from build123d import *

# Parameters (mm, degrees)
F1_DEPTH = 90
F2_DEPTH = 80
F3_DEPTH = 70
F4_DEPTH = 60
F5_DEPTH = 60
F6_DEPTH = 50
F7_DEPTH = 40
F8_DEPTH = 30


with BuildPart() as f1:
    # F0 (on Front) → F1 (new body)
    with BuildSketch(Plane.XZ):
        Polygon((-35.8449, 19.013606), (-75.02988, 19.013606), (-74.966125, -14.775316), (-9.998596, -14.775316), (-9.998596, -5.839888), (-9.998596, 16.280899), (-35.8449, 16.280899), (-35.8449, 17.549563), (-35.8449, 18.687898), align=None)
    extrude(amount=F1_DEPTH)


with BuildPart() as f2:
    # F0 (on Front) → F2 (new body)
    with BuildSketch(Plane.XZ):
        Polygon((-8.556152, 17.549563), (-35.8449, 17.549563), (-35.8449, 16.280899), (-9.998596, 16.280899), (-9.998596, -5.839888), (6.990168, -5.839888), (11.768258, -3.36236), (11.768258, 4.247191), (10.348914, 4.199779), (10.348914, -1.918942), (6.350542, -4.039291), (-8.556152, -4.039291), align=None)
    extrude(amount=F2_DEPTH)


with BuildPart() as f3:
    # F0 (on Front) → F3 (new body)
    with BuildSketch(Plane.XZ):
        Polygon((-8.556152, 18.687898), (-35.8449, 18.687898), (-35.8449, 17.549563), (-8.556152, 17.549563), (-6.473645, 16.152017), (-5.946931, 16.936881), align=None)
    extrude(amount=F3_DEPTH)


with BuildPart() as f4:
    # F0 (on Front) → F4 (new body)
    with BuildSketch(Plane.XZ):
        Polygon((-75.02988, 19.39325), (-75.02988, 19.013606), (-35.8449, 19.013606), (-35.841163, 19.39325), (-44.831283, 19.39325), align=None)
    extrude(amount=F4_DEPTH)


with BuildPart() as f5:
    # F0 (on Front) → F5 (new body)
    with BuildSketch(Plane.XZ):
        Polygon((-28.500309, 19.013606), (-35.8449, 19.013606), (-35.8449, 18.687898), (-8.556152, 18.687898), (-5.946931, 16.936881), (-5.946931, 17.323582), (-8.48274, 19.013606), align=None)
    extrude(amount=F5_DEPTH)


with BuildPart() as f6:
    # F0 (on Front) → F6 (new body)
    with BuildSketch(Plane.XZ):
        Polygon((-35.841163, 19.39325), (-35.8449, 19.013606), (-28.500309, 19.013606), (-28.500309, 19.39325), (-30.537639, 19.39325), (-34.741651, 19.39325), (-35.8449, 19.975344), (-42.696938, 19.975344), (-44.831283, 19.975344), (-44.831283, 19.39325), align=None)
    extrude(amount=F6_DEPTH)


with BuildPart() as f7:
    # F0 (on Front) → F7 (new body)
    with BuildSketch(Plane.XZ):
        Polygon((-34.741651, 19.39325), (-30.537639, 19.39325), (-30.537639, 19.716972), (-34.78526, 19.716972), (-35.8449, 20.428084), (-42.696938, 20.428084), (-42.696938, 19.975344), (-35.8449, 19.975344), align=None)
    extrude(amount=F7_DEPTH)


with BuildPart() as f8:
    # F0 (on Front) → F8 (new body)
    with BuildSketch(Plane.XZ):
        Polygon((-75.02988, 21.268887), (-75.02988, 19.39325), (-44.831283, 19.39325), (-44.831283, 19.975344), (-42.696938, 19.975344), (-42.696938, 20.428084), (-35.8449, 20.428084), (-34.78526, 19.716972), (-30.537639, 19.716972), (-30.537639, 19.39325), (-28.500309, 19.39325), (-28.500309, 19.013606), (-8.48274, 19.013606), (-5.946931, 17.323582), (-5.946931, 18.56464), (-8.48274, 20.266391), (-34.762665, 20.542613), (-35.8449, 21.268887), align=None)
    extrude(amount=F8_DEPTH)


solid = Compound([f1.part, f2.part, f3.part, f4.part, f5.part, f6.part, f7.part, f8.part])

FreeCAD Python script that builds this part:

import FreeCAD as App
import Part
import Sketcher

V = App.Vector

doc = App.newDocument("Part")
body = doc.addObject("PartDesign::Body", "Body")

# Sketch on XZ plane
sketch1 = doc.addObject("Sketcher::SketchObject", "Sketch")
body.addObject(sketch1)
sketch1.AttachmentSupport = (doc.XZ_Plane, [""])
sketch1.MapMode = "FlatFace"
sketch1.addGeometry([
    Part.LineSegment(V(-35.8, 19, 0), V(-75, 19, 0)),  # 0
    Part.LineSegment(V(-75, 19, 0), V(-75, -14.8, 0)),  # 1
    Part.LineSegment(V(-75, -14.8, 0), V(-10, -14.8, 0)),  # 2
    Part.LineSegment(V(-10, -14.8, 0), V(-10, 16.3, 0)),  # 3
    Part.LineSegment(V(-10, 16.3, 0), V(-35.8, 16.3, 0)),  # 4
    Part.LineSegment(V(-35.8, 16.3, 0), V(-35.8, 19, 0)),  # 5
], False)
sketch1.addConstraint([
    Sketcher.Constraint("Coincident", 0, 2, 1, 1),
    Sketcher.Constraint("Coincident", 1, 2, 2, 1),
    Sketcher.Constraint("Coincident", 2, 2, 3, 1),
    Sketcher.Constraint("Coincident", 3, 2, 4, 1),
    Sketcher.Constraint("Coincident", 4, 2, 5, 1),
    Sketcher.Constraint("Coincident", 5, 2, 0, 1),
    Sketcher.Constraint("Horizontal", 0),
    Sketcher.Constraint("Horizontal", 2),
    Sketcher.Constraint("Vertical", 3),
    Sketcher.Constraint("Horizontal", 4),
    Sketcher.Constraint("Vertical", 5),
    Sketcher.Constraint("DistanceX", 0, 2, 0, 1, 39.18498),
    Sketcher.Constraint("DistanceX", 2, 1, 2, 2, 64.967529),
    Sketcher.Constraint("DistanceY", -1, 1, 3, 2, 16.280899),
    Sketcher.Constraint("DistanceX", 4, 2, -1, 1, 35.8449),
    Sketcher.Constraint("DistanceX", 4, 2, 4, 1, 25.846304),
    Sketcher.Constraint("DistanceY", 3, 1, 3, 2, 31.056215),
    Sketcher.Constraint("DistanceY", 5, 1, 5, 2, 2.732707),
])
pad1 = doc.addObject("PartDesign::Pad", "Pad")
body.addObject(pad1)
pad1.Profile = sketch1
pad1.Length = 90
body2 = doc.addObject("PartDesign::Body", "Body001")

# Sketch on XZ plane
sketch2 = doc.addObject("Sketcher::SketchObject", "Sketch001")
body2.addObject(sketch2)
sketch2.AttachmentSupport = (doc.getObject("XZ_Plane001"), [""])
sketch2.MapMode = "FlatFace"
sketch2.addGeometry([
    Part.LineSegment(V(-8.6, 17.5, 0), V(-35.8, 17.5, 0)),  # 0
    Part.LineSegment(V(-35.8, 17.5, 0), V(-35.8, 16.3, 0)),  # 1
    Part.LineSegment(V(-35.8, 16.3, 0), V(-10, 16.3, 0)),  # 2
    Part.LineSegment(V(-10, 16.3, 0), V(-10, -5.8, 0)),  # 3
    Part.LineSegment(V(-10, -5.8, 0), V(7, -5.8, 0)),  # 4
    Part.LineSegment(V(7, -5.8, 0), V(11.8, -3.4, 0)),  # 5
    Part.LineSegment(V(11.8, -3.4, 0), V(11.8, 4.2, 0)),  # 6
    Part.LineSegment(V(11.8, 4.2, 0), V(10.3, 4.2, 0)),  # 7
    Part.LineSegment(V(10.3, 4.2, 0), V(10.3, -1.9, 0)),  # 8
    Part.LineSegment(V(10.3, -1.9, 0), V(6.4, -4, 0)),  # 9
    Part.LineSegment(V(6.4, -4, 0), V(-8.6, -4, 0)),  # 10
    Part.LineSegment(V(-8.6, -4, 0), V(-8.6, 17.5, 0)),  # 11
], False)
sketch2.addConstraint([
    Sketcher.Constraint("Coincident", 0, 2, 1, 1),
    Sketcher.Constraint("Coincident", 1, 2, 2, 1),
    Sketcher.Constraint("Coincident", 2, 2, 3, 1),
    Sketcher.Constraint("Coincident", 3, 2, 4, 1),
    Sketcher.Constraint("Coincident", 4, 2, 5, 1),
    Sketcher.Constraint("Coincident", 5, 2, 6, 1),
    Sketcher.Constraint("Coincident", 6, 2, 7, 1),
    Sketcher.Constraint("Coincident", 7, 2, 8, 1),
    Sketcher.Constraint("Coincident", 8, 2, 9, 1),
    Sketcher.Constraint("Coincident", 9, 2, 10, 1),
    Sketcher.Constraint("Coincident", 10, 2, 11, 1),
    Sketcher.Constraint("Coincident", 11, 2, 0, 1),
    Sketcher.Constraint("Horizontal", 0),
    Sketcher.Constraint("Vertical", 1),
    Sketcher.Constraint("Horizontal", 2),
    Sketcher.Constraint("Vertical", 3),
    Sketcher.Constraint("Horizontal", 4),
    Sketcher.Constraint("Vertical", 6),
    Sketcher.Constraint("Vertical", 8),
    Sketcher.Constraint("Horizontal", 10),
    Sketcher.Constraint("Vertical", 11),
    Sketcher.Constraint("Distance", 9, 4.525799),
    Sketcher.Constraint("DistanceX", 0, 2, 0, 1, 27.288748),
    Sketcher.Constraint("DistanceY", 6, 1, 6, 2, 7.609551),
    Sketcher.Constraint("DistanceY", 8, 2, 8, 1, 6.118721),
    Sketcher.Constraint("DistanceX", 0, 2, -1, 1, 35.8449),
    Sketcher.Constraint("DistanceY", -1, 1, 1, 2, 16.280899),
    Sketcher.Constraint("Distance", 5, 5.38222),
    Sketcher.Constraint("DistanceX", 2, 1, 2, 2, 25.846304),
    Sketcher.Constraint("DistanceX", 4, 1, 4, 2, 16.988764),
    Sketcher.Constraint("DistanceX", 10, 2, 10, 1, 14.906694),
    Sketcher.Constraint("DistanceY", 1, 2, 1, 1, 1.268664),
    Sketcher.Constraint("DistanceY", 3, 2, 3, 1, 22.120787),
    Sketcher.Constraint("DistanceY", 11, 1, 11, 2, 21.588854),
    Sketcher.Constraint("DistanceY", 5, 2, -1, 1, 3.36236),
    Sketcher.Constraint("DistanceY", -1, 1, 7, 2, 4.199779),
])
pad2 = doc.addObject("PartDesign::Pad", "Pad001")
body2.addObject(pad2)
pad2.Profile = sketch2
pad2.Length = 80
body3 = doc.addObject("PartDesign::Body", "Body002")

# Sketch on XZ plane
sketch3 = doc.addObject("Sketcher::SketchObject", "Sketch002")
body3.addObject(sketch3)
sketch3.AttachmentSupport = (doc.getObject("XZ_Plane002"), [""])
sketch3.MapMode = "FlatFace"
sketch3.addGeometry([
    Part.LineSegment(V(-8.6, 18.7, 0), V(-35.8, 18.7, 0)),  # 0
    Part.LineSegment(V(-35.8, 18.7, 0), V(-35.8, 17.5, 0)),  # 1
    Part.LineSegment(V(-35.8, 17.5, 0), V(-8.6, 17.5, 0)),  # 2
    Part.LineSegment(V(-8.6, 17.5, 0), V(-6.5, 16.2, 0)),  # 3
    Part.LineSegment(V(-6.5, 16.2, 0), V(-5.9, 16.9, 0)),  # 4
    Part.LineSegment(V(-5.9, 16.9, 0), V(-8.6, 18.7, 0)),  # 5
], False)
sketch3.addConstraint([
    Sketcher.Constraint("Coincident", 0, 2, 1, 1),
    Sketcher.Constraint("Coincident", 1, 2, 2, 1),
    Sketcher.Constraint("Coincident", 2, 2, 3, 1),
    Sketcher.Constraint("Coincident", 3, 2, 4, 1),
    Sketcher.Constraint("Coincident", 4, 2, 5, 1),
    Sketcher.Constraint("Coincident", 5, 2, 0, 1),
    Sketcher.Constraint("Horizontal", 0),
    Sketcher.Constraint("Vertical", 1),
    Sketcher.Constraint("Horizontal", 2),
    Sketcher.Constraint("Perpendicular", 3, 4),
    Sketcher.Constraint("Perpendicular", 4, 5),
    Sketcher.Constraint("Vertical", 2, 2, 5, 2),
    Sketcher.Constraint("DistanceX", 0, 2, 0, 1, 27.288748),
    Sketcher.Constraint("DistanceX", 0, 2, -1, 1, 35.8449),
    Sketcher.Constraint("DistanceY", -1, 1, 0, 2, 18.687898),
    Sketcher.Constraint("Distance", 3, 2.507981),
    Sketcher.Constraint("Distance", 4, 0.945219),
    Sketcher.Constraint("DistanceY", 1, 2, 1, 1, 1.138335),
])
pad3 = doc.addObject("PartDesign::Pad", "Pad002")
body3.addObject(pad3)
pad3.Profile = sketch3
pad3.Length = 70
body4 = doc.addObject("PartDesign::Body", "Body003")

# Sketch on XZ plane
sketch4 = doc.addObject("Sketcher::SketchObject", "Sketch003")
body4.addObject(sketch4)
sketch4.AttachmentSupport = (doc.getObject("XZ_Plane003"), [""])
sketch4.MapMode = "FlatFace"
sketch4.addGeometry([
    Part.LineSegment(V(-75.03, 19.39, 0), V(-75.03, 19.01, 0)),
    Part.LineSegment(V(-75.03, 19.01, 0), V(-35.84, 19.01, 0)),
    Part.LineSegment(V(-35.84, 19.01, 0), V(-35.84, 19.39, 0)),
    Part.LineSegment(V(-35.84, 19.39, 0), V(-75.03, 19.39, 0)),
], False)
sketch4.addConstraint([
    Sketcher.Constraint("Coincident", 0, 2, 1, 1),
    Sketcher.Constraint("Coincident", 1, 2, 2, 1),
    Sketcher.Constraint("Coincident", 2, 2, 3, 1),
    Sketcher.Constraint("Coincident", 3, 2, 0, 1),
    Sketcher.Constraint("Vertical", 0),
    Sketcher.Constraint("Horizontal", 1),
    Sketcher.Constraint("Horizontal", 3),
    Sketcher.Constraint("DistanceX", 1, 1, 1, 2, 39.18498),
    Sketcher.Constraint("DistanceX", 1, 2, -1, 1, 35.8449),
    Sketcher.Constraint("DistanceX", 3, 2, 3, 1, 39.188717),
    Sketcher.Constraint("DistanceY", 0, 2, 0, 1, 0.379644),
    Sketcher.Constraint("DistanceY", -1, 1, 2, 2, 19.39325),
])
pad4 = doc.addObject("PartDesign::Pad", "Pad003")
body4.addObject(pad4)
pad4.Profile = sketch4
pad4.Length = 60
body5 = doc.addObject("PartDesign::Body", "Body004")

# Sketch on XZ plane
sketch5 = doc.addObject("Sketcher::SketchObject", "Sketch004")
body5.addObject(sketch5)
sketch5.AttachmentSupport = (doc.getObject("XZ_Plane004"), [""])
sketch5.MapMode = "FlatFace"
sketch5.addGeometry([
    Part.LineSegment(V(-35.84, 19.01, 0), V(-35.84, 18.69, 0)),  # 0
    Part.LineSegment(V(-35.84, 18.69, 0), V(-8.56, 18.69, 0)),  # 1
    Part.LineSegment(V(-8.56, 18.69, 0), V(-5.95, 16.94, 0)),  # 2
    Part.LineSegment(V(-5.95, 16.94, 0), V(-5.95, 17.32, 0)),  # 3
    Part.LineSegment(V(-5.95, 17.32, 0), V(-8.48, 19.01, 0)),  # 4
    Part.LineSegment(V(-8.48, 19.01, 0), V(-35.84, 19.01, 0)),  # 5
], False)
sketch5.addConstraint([
    Sketcher.Constraint("Coincident", 0, 2, 1, 1),
    Sketcher.Constraint("Coincident", 1, 2, 2, 1),
    Sketcher.Constraint("Coincident", 2, 2, 3, 1),
    Sketcher.Constraint("Coincident", 3, 2, 4, 1),
    Sketcher.Constraint("Coincident", 4, 2, 5, 1),
    Sketcher.Constraint("Coincident", 5, 2, 0, 1),
    Sketcher.Constraint("Vertical", 0),
    Sketcher.Constraint("Horizontal", 1),
    Sketcher.Constraint("Vertical", 3),
    Sketcher.Constraint("Horizontal", 5),
    Sketcher.Constraint("DistanceY", 3, 1, 3, 2, 0.386701),
    Sketcher.Constraint("DistanceX", 1, 1, 1, 2, 27.288748),
    Sketcher.Constraint("DistanceX", 5, 2, 5, 1, 27.36216),
    Sketcher.Constraint("DistanceX", 0, 2, -1, 1, 35.8449),
    Sketcher.Constraint("DistanceY", -1, 1, 0, 2, 18.687898),
    Sketcher.Constraint("DistanceY", 0, 2, 0, 1, 0.325708),
    Sketcher.Constraint("DistanceX", 2, 2, -1, 1, 5.946931),
    Sketcher.Constraint("DistanceY", -1, 1, 2, 2, 16.936881),
])
pad5 = doc.addObject("PartDesign::Pad", "Pad004")
body5.addObject(pad5)
pad5.Profile = sketch5
pad5.Length = 60
body6 = doc.addObject("PartDesign::Body", "Body005")

# Sketch on XZ plane
sketch6 = doc.addObject("Sketcher::SketchObject", "Sketch005")
body6.addObject(sketch6)
sketch6.AttachmentSupport = (doc.getObject("XZ_Plane005"), [""])
sketch6.MapMode = "FlatFace"
sketch6.addGeometry([
    Part.LineSegment(V(-35.84, 19.39, 0), V(-35.84, 19.01, 0)),  # 0
    Part.LineSegment(V(-35.84, 19.01, 0), V(-28.5, 19.01, 0)),  # 1
    Part.LineSegment(V(-28.5, 19.01, 0), V(-28.5, 19.39, 0)),  # 2
    Part.LineSegment(V(-28.5, 19.39, 0), V(-34.74, 19.39, 0)),  # 3
    Part.LineSegment(V(-34.74, 19.39, 0), V(-35.84, 19.98, 0)),  # 4
    Part.LineSegment(V(-35.84, 19.98, 0), V(-44.83, 19.98, 0)),  # 5
    Part.LineSegment(V(-44.83, 19.98, 0), V(-44.83, 19.39, 0)),  # 6
    Part.LineSegment(V(-44.83, 19.39, 0), V(-35.84, 19.39, 0)),  # 7
], False)
sketch6.addConstraint([
    Sketcher.Constraint("Coincident", 0, 2, 1, 1),
    Sketcher.Constraint("Coincident", 1, 2, 2, 1),
    Sketcher.Constraint("Coincident", 2, 2, 3, 1),
    Sketcher.Constraint("Coincident", 3, 2, 4, 1),
    Sketcher.Constraint("Coincident", 4, 2, 5, 1),
    Sketcher.Constraint("Coincident", 5, 2, 6, 1),
    Sketcher.Constraint("Coincident", 6, 2, 7, 1),
    Sketcher.Constraint("Coincident", 7, 2, 0, 1),
    Sketcher.Constraint("Horizontal", 1),
    Sketcher.Constraint("Vertical", 2),
    Sketcher.Constraint("Horizontal", 3),
    Sketcher.Constraint("Horizontal", 5),
    Sketcher.Constraint("Vertical", 6),
    Sketcher.Constraint("Horizontal", 7),
    Sketcher.Constraint("Horizontal", 3, 2, 6, 2),
    Sketcher.Constraint("Vertical", 0, 2, 4, 2),
    Sketcher.Constraint("DistanceX", 1, 1, 1, 2, 7.344591),
    Sketcher.Constraint("DistanceX", 3, 2, 3, 1, 6.241342),
    Sketcher.Constraint("DistanceX", 7, 1, 7, 2, 8.99012),
    Sketcher.Constraint("DistanceX", 0, 2, -1, 1, 35.8449),
    Sketcher.Constraint("DistanceX", 5, 2, 5, 1, 8.986383),
    Sketcher.Constraint("DistanceY", 2, 1, 2, 2, 0.379644),
    Sketcher.Constraint("DistanceY", 6, 2, 6, 1, 0.582094),
    Sketcher.Constraint("DistanceY", -1, 1, 2, 2, 19.39325),
])
pad6 = doc.addObject("PartDesign::Pad", "Pad005")
body6.addObject(pad6)
pad6.Profile = sketch6
pad6.Length = 50
body7 = doc.addObject("PartDesign::Body", "Body006")

# Sketch on XZ plane
sketch7 = doc.addObject("Sketcher::SketchObject", "Sketch006")
body7.addObject(sketch7)
sketch7.AttachmentSupport = (doc.getObject("XZ_Plane006"), [""])
sketch7.MapMode = "FlatFace"
sketch7.addGeometry([
    Part.LineSegment(V(-34.74, 19.39, 0), V(-30.54, 19.39, 0)),  # 0
    Part.LineSegment(V(-30.54, 19.39, 0), V(-30.54, 19.72, 0)),  # 1
    Part.LineSegment(V(-30.54, 19.72, 0), V(-34.79, 19.72, 0)),  # 2
    Part.LineSegment(V(-34.79, 19.72, 0), V(-35.84, 20.43, 0)),  # 3
    Part.LineSegment(V(-35.84, 20.43, 0), V(-42.7, 20.43, 0)),  # 4
    Part.LineSegment(V(-42.7, 20.43, 0), V(-42.7, 19.98, 0)),  # 5
    Part.LineSegment(V(-42.7, 19.98, 0), V(-35.84, 19.98, 0)),  # 6
    Part.LineSegment(V(-35.84, 19.98, 0), V(-34.74, 19.39, 0)),  # 7
], False)
sketch7.addConstraint([
    Sketcher.Constraint("Coincident", 0, 2, 1, 1),
    Sketcher.Constraint("Coincident", 1, 2, 2, 1),
    Sketcher.Constraint("Coincident", 2, 2, 3, 1),
    Sketcher.Constraint("Coincident", 3, 2, 4, 1),
    Sketcher.Constraint("Coincident", 4, 2, 5, 1),
    Sketcher.Constraint("Coincident", 5, 2, 6, 1),
    Sketcher.Constraint("Coincident", 6, 2, 7, 1),
    Sketcher.Constraint("Coincident", 7, 2, 0, 1),
    Sketcher.Constraint("Horizontal", 0),
    Sketcher.Constraint("Vertical", 1),
    Sketcher.Constraint("Horizontal", 2),
    Sketcher.Constraint("Horizontal", 4),
    Sketcher.Constraint("Vertical", 5),
    Sketcher.Constraint("Horizontal", 6),
    Sketcher.Constraint("Vertical", 3, 2, 6, 2),
    Sketcher.Constraint("DistanceX", 0, 1, 0, 2, 4.204012),
    Sketcher.Constraint("DistanceX", 2, 2, 2, 1, 4.247621),
    Sketcher.Constraint("DistanceX", 4, 2, 4, 1, 6.852038),
    Sketcher.Constraint("DistanceY", 5, 2, 5, 1, 0.45274),
    Sketcher.Constraint("DistanceX", 3, 2, -1, 1, 35.8449),
    Sketcher.Constraint("DistanceX", 4, 2, 1, 2, 12.159299),
    Sketcher.Constraint("DistanceY", 1, 1, 1, 2, 0.323722),
    Sketcher.Constraint("DistanceY", -1, 1, 0, 2, 19.39325),
    Sketcher.Constraint("DistanceY", 2, 2, 3, 2, 0.711112),
])
pad7 = doc.addObject("PartDesign::Pad", "Pad006")
body7.addObject(pad7)
pad7.Profile = sketch7
pad7.Length = 40
body8 = doc.addObject("PartDesign::Body", "Body007")

# Sketch on XZ plane
sketch8 = doc.addObject("Sketcher::SketchObject", "Sketch007")
body8.addObject(sketch8)
sketch8.AttachmentSupport = (doc.getObject("XZ_Plane007"), [""])
sketch8.MapMode = "FlatFace"
sketch8.addGeometry([
    Part.LineSegment(V(-75.03, 21.27, 0), V(-75.03, 19.39, 0)),  # 0
    Part.LineSegment(V(-75.03, 19.39, 0), V(-44.83, 19.39, 0)),  # 1
    Part.LineSegment(V(-44.83, 19.39, 0), V(-44.83, 19.98, 0)),  # 2
    Part.LineSegment(V(-44.83, 19.98, 0), V(-42.7, 19.98, 0)),  # 3
    Part.LineSegment(V(-42.7, 19.98, 0), V(-42.7, 20.43, 0)),  # 4
    Part.LineSegment(V(-42.7, 20.43, 0), V(-35.84, 20.43, 0)),  # 5
    Part.LineSegment(V(-35.84, 20.43, 0), V(-34.79, 19.72, 0)),  # 6
    Part.LineSegment(V(-34.79, 19.72, 0), V(-30.54, 19.72, 0)),  # 7
    Part.LineSegment(V(-30.54, 19.72, 0), V(-30.54, 19.39, 0)),  # 8
    Part.LineSegment(V(-30.54, 19.39, 0), V(-28.5, 19.39, 0)),  # 9
    Part.LineSegment(V(-28.5, 19.39, 0), V(-28.5, 19.01, 0)),  # 10
    Part.LineSegment(V(-28.5, 19.01, 0), V(-8.48, 19.01, 0)),  # 11
    Part.LineSegment(V(-8.48, 19.01, 0), V(-5.95, 17.32, 0)),  # 12
    Part.LineSegment(V(-5.95, 17.32, 0), V(-5.95, 18.56, 0)),  # 13
    Part.LineSegment(V(-5.95, 18.56, 0), V(-8.48, 20.27, 0)),  # 14
    Part.LineSegment(V(-8.48, 20.27, 0), V(-34.76, 20.54, 0)),  # 15
    Part.LineSegment(V(-34.76, 20.54, 0), V(-35.84, 21.27, 0)),  # 16
    Part.LineSegment(V(-35.84, 21.27, 0), V(-75.03, 21.27, 0)),  # 17
], False)
sketch8.addConstraint([
    Sketcher.Constraint("Coincident", 0, 2, 1, 1),
    Sketcher.Constraint("Coincident", 1, 2, 2, 1),
    Sketcher.Constraint("Coincident", 2, 2, 3, 1),
    Sketcher.Constraint("Coincident", 3, 2, 4, 1),
    Sketcher.Constraint("Coincident", 4, 2, 5, 1),
    Sketcher.Constraint("Coincident", 5, 2, 6, 1),
    Sketcher.Constraint("Coincident", 6, 2, 7, 1),
    Sketcher.Constraint("Coincident", 7, 2, 8, 1),
    Sketcher.Constraint("Coincident", 8, 2, 9, 1),
    Sketcher.Constraint("Coincident", 9, 2, 10, 1),
    Sketcher.Constraint("Coincident", 10, 2, 11, 1),
    Sketcher.Constraint("Coincident", 11, 2, 12, 1),
    Sketcher.Constraint("Coincident", 12, 2, 13, 1),
    Sketcher.Constraint("Coincident", 13, 2, 14, 1),
    Sketcher.Constraint("Coincident", 14, 2, 15, 1),
    Sketcher.Constraint("Coincident", 15, 2, 16, 1),
    Sketcher.Constraint("Coincident", 16, 2, 17, 1),
    Sketcher.Constraint("Coincident", 17, 2, 0, 1),
    Sketcher.Constraint("Vertical", 0),
    Sketcher.Constraint("Horizontal", 1),
    Sketcher.Constraint("Vertical", 2),
    Sketcher.Constraint("Horizontal", 3),
    Sketcher.Constraint("Vertical", 4),
    Sketcher.Constraint("Horizontal", 5),
    Sketcher.Constraint("Horizontal", 7),
    Sketcher.Constraint("Vertical", 8),
    Sketcher.Constraint("Horizontal", 9),
    Sketcher.Constraint("Vertical", 10),
    Sketcher.Constraint("Horizontal", 11),
    Sketcher.Constraint("Vertical", 13),
    Sketcher.Constraint("Horizontal", 17),
    Sketcher.Constraint("Parallel", 6, 14),
    Sketcher.Constraint("Parallel", 14, 16),
    Sketcher.Constraint("Horizontal", 1, 2, 8, 2),
    Sketcher.Constraint("Vertical", 11, 2, 14, 2),
    Sketcher.Constraint("Vertical", 5, 2, 16, 2),
    Sketcher.Constraint("DistanceX", 5, 1, 5, 2, 6.852038),
    Sketcher.Constraint("DistanceX", 7, 1, 7, 2, 4.247621),
    Sketcher.Constraint("DistanceX", 9, 1, 9, 2, 2.03733),
    Sketcher.Constraint("DistanceX", 11, 1, 11, 2, 20.017569),
    Sketcher.Constraint("DistanceX", 17, 2, 17, 1, 39.18498),
    Sketcher.Constraint("DistanceY", 4, 1, 4, 2, 0.45274),
    Sketcher.Constraint("DistanceY", 13, 1, 13, 2, 1.241058),
    Sketcher.Constraint("DistanceX", 5, 2, -1, 1, 35.8449),
    Sketcher.Constraint("DistanceX", 3, 2, 7, 2, 12.159299),
    Sketcher.Constraint("DistanceX", 1, 1, 1, 2, 30.198597),
    Sketcher.Constraint("DistanceY", 0, 2, 0, 1, 1.875637),
    Sketcher.Constraint("DistanceY", 2, 1, 2, 2, 0.582094),
    Sketcher.Constraint("DistanceY", 8, 2, 8, 1, 0.323722),
    Sketcher.Constraint("DistanceY", 10, 2, 10, 1, 0.379644),
    Sketcher.Constraint("DistanceY", -1, 1, 0, 2, 19.39325),
    Sketcher.Constraint("DistanceX", 12, 2, -1, 1, 5.946931),
    Sketcher.Constraint("DistanceY", -1, 1, 12, 2, 17.323582),
    Sketcher.Constraint("DistanceY", 6, 2, 15, 2, 0.825641),
])
pad8 = doc.addObject("PartDesign::Pad", "Pad007")
body8.addObject(pad8)
pad8.Profile = sketch8
pad8.Length = 30

doc.recompute()
